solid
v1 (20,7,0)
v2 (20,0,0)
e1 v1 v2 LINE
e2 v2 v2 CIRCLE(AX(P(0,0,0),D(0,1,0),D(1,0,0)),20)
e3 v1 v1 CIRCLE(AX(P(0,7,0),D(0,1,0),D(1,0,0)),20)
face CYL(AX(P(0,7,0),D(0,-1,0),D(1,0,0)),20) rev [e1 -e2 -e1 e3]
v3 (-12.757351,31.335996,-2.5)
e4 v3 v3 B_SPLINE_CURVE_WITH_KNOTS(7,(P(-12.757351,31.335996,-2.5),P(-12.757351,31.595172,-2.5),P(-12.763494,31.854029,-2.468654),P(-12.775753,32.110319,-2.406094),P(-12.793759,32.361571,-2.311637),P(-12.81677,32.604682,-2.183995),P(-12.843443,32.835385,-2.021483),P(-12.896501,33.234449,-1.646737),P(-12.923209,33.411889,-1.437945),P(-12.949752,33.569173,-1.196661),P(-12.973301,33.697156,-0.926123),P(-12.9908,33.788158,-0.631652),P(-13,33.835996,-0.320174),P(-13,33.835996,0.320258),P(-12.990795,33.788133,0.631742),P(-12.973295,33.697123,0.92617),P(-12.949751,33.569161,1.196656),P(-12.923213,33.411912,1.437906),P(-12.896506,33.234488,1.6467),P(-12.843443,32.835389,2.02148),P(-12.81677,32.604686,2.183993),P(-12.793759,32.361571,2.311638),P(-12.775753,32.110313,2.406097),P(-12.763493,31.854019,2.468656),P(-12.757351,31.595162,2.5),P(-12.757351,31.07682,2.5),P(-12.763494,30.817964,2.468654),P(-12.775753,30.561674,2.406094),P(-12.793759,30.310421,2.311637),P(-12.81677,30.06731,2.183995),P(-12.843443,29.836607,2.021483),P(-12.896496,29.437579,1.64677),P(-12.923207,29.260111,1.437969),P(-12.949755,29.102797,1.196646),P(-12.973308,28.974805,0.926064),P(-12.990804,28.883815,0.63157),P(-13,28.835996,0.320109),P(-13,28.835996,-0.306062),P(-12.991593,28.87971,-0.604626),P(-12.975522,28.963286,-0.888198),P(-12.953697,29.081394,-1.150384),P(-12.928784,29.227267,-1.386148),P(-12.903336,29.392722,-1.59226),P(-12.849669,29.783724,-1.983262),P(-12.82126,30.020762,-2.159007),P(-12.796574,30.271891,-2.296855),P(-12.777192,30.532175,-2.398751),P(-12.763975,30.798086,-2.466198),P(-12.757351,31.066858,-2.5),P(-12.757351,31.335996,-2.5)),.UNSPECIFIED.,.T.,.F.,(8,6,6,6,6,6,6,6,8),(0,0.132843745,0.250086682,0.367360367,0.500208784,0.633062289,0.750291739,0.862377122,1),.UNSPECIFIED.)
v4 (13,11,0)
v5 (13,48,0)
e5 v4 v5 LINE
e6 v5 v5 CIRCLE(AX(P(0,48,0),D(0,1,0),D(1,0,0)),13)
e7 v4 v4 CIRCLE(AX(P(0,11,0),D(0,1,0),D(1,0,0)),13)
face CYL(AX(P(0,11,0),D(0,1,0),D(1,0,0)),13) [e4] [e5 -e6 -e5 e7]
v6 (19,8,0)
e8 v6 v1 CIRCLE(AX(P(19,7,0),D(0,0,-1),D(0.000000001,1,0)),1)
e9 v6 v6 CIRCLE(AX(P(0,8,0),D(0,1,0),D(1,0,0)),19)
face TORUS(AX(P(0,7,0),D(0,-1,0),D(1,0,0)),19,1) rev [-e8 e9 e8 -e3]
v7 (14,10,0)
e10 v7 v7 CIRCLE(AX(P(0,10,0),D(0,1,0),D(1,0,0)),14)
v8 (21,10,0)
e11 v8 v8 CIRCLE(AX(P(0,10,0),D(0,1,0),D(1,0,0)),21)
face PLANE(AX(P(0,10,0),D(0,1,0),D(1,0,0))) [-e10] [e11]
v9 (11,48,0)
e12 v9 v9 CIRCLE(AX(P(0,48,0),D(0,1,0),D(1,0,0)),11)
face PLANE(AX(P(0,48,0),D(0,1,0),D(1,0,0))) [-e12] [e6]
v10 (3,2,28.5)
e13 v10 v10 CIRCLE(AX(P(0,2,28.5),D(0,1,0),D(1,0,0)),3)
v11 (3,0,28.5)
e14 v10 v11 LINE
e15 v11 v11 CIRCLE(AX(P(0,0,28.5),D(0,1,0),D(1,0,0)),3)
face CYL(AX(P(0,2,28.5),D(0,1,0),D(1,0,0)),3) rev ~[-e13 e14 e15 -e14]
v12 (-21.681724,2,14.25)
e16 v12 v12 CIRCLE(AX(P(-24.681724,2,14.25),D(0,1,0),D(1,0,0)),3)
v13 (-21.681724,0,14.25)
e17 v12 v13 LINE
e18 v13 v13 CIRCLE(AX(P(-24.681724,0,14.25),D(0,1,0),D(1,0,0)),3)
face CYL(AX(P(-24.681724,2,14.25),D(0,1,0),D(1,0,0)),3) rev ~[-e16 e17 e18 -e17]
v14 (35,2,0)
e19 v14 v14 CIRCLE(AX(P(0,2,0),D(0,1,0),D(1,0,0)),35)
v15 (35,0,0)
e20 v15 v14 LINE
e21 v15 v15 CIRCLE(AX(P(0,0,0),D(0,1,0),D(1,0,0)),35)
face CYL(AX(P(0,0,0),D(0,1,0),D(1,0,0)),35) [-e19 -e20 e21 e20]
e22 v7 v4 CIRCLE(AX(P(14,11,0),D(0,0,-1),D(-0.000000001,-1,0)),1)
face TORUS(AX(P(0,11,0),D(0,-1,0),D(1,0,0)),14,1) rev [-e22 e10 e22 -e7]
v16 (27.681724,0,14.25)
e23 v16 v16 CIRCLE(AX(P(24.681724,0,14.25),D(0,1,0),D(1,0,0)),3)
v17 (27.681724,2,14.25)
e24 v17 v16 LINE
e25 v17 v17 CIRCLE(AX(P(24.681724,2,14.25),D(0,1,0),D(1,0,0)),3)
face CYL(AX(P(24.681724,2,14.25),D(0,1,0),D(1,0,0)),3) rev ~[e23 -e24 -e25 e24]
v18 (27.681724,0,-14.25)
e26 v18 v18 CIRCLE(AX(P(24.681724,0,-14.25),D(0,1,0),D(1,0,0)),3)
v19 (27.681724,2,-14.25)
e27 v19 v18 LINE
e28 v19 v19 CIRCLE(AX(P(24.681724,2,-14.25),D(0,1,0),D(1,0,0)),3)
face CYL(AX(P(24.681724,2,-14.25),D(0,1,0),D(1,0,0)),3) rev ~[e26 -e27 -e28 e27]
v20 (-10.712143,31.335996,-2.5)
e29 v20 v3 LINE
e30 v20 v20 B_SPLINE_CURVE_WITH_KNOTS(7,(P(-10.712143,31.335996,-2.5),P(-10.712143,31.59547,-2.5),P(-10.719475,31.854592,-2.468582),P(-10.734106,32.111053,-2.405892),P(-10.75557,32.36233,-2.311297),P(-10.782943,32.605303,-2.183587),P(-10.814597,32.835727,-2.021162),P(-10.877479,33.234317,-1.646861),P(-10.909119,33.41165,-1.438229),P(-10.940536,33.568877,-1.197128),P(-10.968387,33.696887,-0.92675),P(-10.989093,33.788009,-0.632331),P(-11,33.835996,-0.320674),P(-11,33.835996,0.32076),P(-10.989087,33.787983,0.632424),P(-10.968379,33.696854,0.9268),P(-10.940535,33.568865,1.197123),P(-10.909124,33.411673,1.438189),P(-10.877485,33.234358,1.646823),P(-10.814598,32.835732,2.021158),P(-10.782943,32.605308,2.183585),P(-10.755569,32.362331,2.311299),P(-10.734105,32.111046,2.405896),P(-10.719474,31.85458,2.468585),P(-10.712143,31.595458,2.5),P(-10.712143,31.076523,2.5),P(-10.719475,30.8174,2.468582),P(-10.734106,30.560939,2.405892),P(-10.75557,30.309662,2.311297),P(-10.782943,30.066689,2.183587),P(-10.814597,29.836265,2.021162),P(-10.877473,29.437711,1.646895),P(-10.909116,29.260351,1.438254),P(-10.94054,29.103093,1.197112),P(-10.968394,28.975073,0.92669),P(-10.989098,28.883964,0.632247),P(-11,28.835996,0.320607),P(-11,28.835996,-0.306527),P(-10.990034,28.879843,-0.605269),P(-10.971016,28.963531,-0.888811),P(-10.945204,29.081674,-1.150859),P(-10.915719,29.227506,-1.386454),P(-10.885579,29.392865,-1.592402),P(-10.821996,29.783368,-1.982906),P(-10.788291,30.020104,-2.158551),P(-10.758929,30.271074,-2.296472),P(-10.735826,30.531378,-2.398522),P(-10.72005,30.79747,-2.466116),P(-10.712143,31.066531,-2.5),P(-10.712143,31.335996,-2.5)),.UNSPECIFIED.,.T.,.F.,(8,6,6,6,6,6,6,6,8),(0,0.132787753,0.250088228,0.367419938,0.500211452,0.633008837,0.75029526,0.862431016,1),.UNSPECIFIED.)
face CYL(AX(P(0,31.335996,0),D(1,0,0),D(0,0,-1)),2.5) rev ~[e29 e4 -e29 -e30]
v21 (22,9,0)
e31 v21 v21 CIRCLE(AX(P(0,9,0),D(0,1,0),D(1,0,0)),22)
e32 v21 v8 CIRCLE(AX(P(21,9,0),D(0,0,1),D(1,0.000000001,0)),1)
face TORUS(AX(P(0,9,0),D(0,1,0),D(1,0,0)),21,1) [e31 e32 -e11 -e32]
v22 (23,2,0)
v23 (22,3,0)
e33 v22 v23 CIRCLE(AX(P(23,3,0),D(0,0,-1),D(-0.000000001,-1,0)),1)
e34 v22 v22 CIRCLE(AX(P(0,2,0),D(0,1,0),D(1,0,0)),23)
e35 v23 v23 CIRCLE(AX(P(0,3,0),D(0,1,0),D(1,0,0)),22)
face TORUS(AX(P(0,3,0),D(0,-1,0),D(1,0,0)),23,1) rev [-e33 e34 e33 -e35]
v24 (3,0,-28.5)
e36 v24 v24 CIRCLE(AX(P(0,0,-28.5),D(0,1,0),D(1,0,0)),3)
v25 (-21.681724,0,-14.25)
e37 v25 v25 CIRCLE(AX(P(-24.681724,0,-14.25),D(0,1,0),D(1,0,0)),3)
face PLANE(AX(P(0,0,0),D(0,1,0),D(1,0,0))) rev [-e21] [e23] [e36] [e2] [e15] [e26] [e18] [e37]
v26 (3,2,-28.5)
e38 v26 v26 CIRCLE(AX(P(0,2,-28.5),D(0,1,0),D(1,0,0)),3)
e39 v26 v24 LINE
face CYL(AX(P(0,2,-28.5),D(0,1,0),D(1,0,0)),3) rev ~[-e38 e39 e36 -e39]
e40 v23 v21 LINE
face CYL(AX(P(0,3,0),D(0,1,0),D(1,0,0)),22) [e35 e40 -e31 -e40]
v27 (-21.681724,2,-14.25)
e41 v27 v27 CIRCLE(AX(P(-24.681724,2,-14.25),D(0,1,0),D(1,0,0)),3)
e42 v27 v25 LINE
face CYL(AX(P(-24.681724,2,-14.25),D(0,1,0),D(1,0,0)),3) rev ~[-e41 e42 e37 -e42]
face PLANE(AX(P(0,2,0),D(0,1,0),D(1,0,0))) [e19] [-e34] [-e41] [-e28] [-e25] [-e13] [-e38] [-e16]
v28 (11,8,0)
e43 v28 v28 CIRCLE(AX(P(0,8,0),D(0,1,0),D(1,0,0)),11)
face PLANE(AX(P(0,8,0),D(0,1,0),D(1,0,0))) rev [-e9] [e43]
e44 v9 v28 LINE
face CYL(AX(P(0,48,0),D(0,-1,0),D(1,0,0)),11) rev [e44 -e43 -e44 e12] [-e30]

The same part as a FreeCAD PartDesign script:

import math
import FreeCAD as App
import Part
import Sketcher

V = App.Vector

doc = App.newDocument("Part")
body = doc.addObject("PartDesign::Body", "Body")

sketch1 = doc.addObject("Sketcher::SketchObject", "Sketch")
body.addObject(sketch1)
sketch1.AttachmentSupport = (doc.XY_Plane, [""])
sketch1.MapMode = "FlatFace"
sketch1.addGeometry([
    Part.LineSegment(V(20, 0, 0), V(35, 0, 0)),
    Part.LineSegment(V(35, 0, 0), V(35, 2, 0)),
    Part.LineSegment(V(35, 2, 0), V(23, 2, 0)),
    Part.ArcOfCircle(Part.Circle(V(23, 3, 0), V(0, 0, 1), 1), math.radians(-180), math.radians(-90)),
    Part.LineSegment(V(22, 3, 0), V(22, 9, 0)),
    Part.ArcOfCircle(Part.Circle(V(21, 9, 0), V(0, 0, 1), 1), math.radians(0), math.radians(90)),
    Part.LineSegment(V(21, 10, 0), V(14, 10, 0)),
    Part.ArcOfCircle(Part.Circle(V(14, 11, 0), V(0, 0, 1), 1), math.radians(-180), math.radians(-90)),
    Part.LineSegment(V(13, 11, 0), V(13, 48, 0)),
    Part.LineSegment(V(13, 48, 0), V(11, 48, 0)),
    Part.LineSegment(V(11, 48, 0), V(11, 8, 0)),
    Part.LineSegment(V(11, 8, 0), V(19, 8, 0)),
    Part.ArcOfCircle(Part.Circle(V(19, 7, 0), V(0, 0, 1), 1), math.radians(0), math.radians(90)),
    Part.LineSegment(V(20, 7, 0), V(20, 0, 0)),
], False)
sketch1.addConstraint([
    Sketcher.Constraint("Coincident", 0, 2, 1, 1),
    Sketcher.Constraint("Coincident", 1, 2, 2, 1),
    Sketcher.Constraint("Tangent", 2, 2, 3, 2),
    Sketcher.Constraint("Tangent", 3, 1, 4, 1),
    Sketcher.Constraint("Tangent", 4, 2, 5, 1),
    Sketcher.Constraint("Tangent", 5, 2, 6, 1),
    Sketcher.Constraint("Tangent", 6, 2, 7, 2),
    Sketcher.Constraint("Tangent", 7, 1, 8, 1),
    Sketcher.Constraint("Coincident", 8, 2, 9, 1),
    Sketcher.Constraint("Coincident", 9, 2, 10, 1),
    Sketcher.Constraint("Coincident", 10, 2, 11, 1),
    Sketcher.Constraint("Tangent", 11, 2, 12, 2),
    Sketcher.Constraint("Tangent", 12, 1, 13, 1),
    Sketcher.Constraint("Coincident", 13, 2, 0, 1),
    Sketcher.Constraint("Horizontal", 0),
    Sketcher.Constraint("Vertical", 1),
    Sketcher.Constraint("Horizontal", 2),
    Sketcher.Constraint("Vertical", 4),
    Sketcher.Constraint("Horizontal", 6),
    Sketcher.Constraint("Vertical", 8),
    Sketcher.Constraint("Horizontal", 9),
    Sketcher.Constraint("Vertical", 10),
    Sketcher.Constraint("Horizontal", 11),
    Sketcher.Constraint("Vertical", 13),
    Sketcher.Constraint("Equal", 3, 5),
    Sketcher.Constraint("Equal", 5, 7),
    Sketcher.Constraint("Equal", 7, 12),
    Sketcher.Constraint("PointOnObject", 0, 2, -1),
    Sketcher.Constraint("Equal", 9, 1),
    Sketcher.Constraint("Equal", 6, 13),
    Sketcher.Constraint("Radius", 3, 1.0),
    Sketcher.Constraint("DistanceX", 0, 1, 0, 2, 15.0),
    Sketcher.Constraint("DistanceX", 2, 2, 2, 1, 12.0),
    Sketcher.Constraint("DistanceX", 6, 2, 6, 1, 7.0),
    Sketcher.Constraint("DistanceX", 9, 2, 9, 1, 2.0),
    Sketcher.Constraint("DistanceY", 4, 1, 4, 2, 6.0),
    Sketcher.Constraint("DistanceY", 8, 1, 8, 2, 37.0),
    Sketcher.Constraint("DistanceX", -1, 1, 3, 3, 23.0),
])
revolution = doc.addObject("PartDesign::Revolution", "Revolution")
body.addObject(revolution)
revolution.Profile = sketch1
revolution.ReferenceAxis = (sketch1, ["V_Axis"])
revolution.Angle = 360

sketch2 = doc.addObject("Sketcher::SketchObject", "Sketch001")
body.addObject(sketch2)
sketch2.AttachmentSupport = (doc.XZ_Plane, [""])
sketch2.MapMode = "FlatFace"
sketch2.AttachmentOffset = App.Placement(V(0, 0, -2), App.Rotation())
sketch2.addGeometry([
    Part.Circle(V(0, -28.5, 0), V(0, 0, 1), 3),
    Part.Circle(V(24.7, -14.2, 0), V(0, 0, 1), 3),
    Part.Circle(V(24.7, 14.2, 0), V(0, 0, 1), 3),
    Part.Circle(V(0, 28.5, 0), V(0, 0, 1), 3),
    Part.Circle(V(-24.7, 14.2, 0), V(0, 0, 1), 3),
    Part.Circle(V(-24.7, -14.2, 0), V(0, 0, 1), 3),
], False)
sketch2.addConstraint([
    Sketcher.Constraint("Equal", 0, 1),
    Sketcher.Constraint("Equal", 1, 2),
    Sketcher.Constraint("Equal", 2, 3),
    Sketcher.Constraint("Equal", 3, 4),
    Sketcher.Constraint("Equal", 4, 5),
    Sketcher.Constraint("Symmetric", 0, 3, 3, 3, -1, 1),
    Sketcher.Constraint("Symmetric", 1, 3, 4, 3, -1, 1),
    Sketcher.Constraint("Symmetric", 2, 3, 5, 3, -1, 1),
    Sketcher.Constraint("Symmetric", 2, 3, 4, 3, -2),
    Sketcher.Constraint("PointOnObject", 0, 3, -2),
    Sketcher.Constraint("Diameter", 0, 6.0),
    Sketcher.Constraint("DistanceY", 0, 3, 3, 3, 57.0),
    Sketcher.Constraint("DistanceY", 1, 3, 2, 3, 28.5),
    Sketcher.Constraint("DistanceX", 4, 3, 2, 3, 49.363448),
])
pocket1 = doc.addObject("PartDesign::Pocket", "Pocket")
body.addObject(pocket1)
pocket1.Profile = sketch2
pocket1.Type = "ThroughAll"
pocket1.Reversed = True

sketch3 = doc.addObject("Sketcher::SketchObject", "Sketch002")
body.addObject(sketch3)
sketch3.AttachmentSupport = (doc.YZ_Plane, [""])
sketch3.MapMode = "FlatFace"
sketch3.addGeometry(Part.Circle(V(31.3, 0, 0), V(0, 0, 1), 2.5), False)
sketch3.addConstraint([
    Sketcher.Constraint("PointOnObject", 0, 3, -1),
    Sketcher.Constraint("Diameter", 0, 5.0),
    Sketcher.Constraint("DistanceX", -1, 1, 0, 3, 31.335996),
])
pocket2 = doc.addObject("PartDesign::Pocket", "Pocket001")
body.addObject(pocket2)
pocket2.Profile = sketch3
pocket2.Type = "ThroughAll"

doc.recompute()
